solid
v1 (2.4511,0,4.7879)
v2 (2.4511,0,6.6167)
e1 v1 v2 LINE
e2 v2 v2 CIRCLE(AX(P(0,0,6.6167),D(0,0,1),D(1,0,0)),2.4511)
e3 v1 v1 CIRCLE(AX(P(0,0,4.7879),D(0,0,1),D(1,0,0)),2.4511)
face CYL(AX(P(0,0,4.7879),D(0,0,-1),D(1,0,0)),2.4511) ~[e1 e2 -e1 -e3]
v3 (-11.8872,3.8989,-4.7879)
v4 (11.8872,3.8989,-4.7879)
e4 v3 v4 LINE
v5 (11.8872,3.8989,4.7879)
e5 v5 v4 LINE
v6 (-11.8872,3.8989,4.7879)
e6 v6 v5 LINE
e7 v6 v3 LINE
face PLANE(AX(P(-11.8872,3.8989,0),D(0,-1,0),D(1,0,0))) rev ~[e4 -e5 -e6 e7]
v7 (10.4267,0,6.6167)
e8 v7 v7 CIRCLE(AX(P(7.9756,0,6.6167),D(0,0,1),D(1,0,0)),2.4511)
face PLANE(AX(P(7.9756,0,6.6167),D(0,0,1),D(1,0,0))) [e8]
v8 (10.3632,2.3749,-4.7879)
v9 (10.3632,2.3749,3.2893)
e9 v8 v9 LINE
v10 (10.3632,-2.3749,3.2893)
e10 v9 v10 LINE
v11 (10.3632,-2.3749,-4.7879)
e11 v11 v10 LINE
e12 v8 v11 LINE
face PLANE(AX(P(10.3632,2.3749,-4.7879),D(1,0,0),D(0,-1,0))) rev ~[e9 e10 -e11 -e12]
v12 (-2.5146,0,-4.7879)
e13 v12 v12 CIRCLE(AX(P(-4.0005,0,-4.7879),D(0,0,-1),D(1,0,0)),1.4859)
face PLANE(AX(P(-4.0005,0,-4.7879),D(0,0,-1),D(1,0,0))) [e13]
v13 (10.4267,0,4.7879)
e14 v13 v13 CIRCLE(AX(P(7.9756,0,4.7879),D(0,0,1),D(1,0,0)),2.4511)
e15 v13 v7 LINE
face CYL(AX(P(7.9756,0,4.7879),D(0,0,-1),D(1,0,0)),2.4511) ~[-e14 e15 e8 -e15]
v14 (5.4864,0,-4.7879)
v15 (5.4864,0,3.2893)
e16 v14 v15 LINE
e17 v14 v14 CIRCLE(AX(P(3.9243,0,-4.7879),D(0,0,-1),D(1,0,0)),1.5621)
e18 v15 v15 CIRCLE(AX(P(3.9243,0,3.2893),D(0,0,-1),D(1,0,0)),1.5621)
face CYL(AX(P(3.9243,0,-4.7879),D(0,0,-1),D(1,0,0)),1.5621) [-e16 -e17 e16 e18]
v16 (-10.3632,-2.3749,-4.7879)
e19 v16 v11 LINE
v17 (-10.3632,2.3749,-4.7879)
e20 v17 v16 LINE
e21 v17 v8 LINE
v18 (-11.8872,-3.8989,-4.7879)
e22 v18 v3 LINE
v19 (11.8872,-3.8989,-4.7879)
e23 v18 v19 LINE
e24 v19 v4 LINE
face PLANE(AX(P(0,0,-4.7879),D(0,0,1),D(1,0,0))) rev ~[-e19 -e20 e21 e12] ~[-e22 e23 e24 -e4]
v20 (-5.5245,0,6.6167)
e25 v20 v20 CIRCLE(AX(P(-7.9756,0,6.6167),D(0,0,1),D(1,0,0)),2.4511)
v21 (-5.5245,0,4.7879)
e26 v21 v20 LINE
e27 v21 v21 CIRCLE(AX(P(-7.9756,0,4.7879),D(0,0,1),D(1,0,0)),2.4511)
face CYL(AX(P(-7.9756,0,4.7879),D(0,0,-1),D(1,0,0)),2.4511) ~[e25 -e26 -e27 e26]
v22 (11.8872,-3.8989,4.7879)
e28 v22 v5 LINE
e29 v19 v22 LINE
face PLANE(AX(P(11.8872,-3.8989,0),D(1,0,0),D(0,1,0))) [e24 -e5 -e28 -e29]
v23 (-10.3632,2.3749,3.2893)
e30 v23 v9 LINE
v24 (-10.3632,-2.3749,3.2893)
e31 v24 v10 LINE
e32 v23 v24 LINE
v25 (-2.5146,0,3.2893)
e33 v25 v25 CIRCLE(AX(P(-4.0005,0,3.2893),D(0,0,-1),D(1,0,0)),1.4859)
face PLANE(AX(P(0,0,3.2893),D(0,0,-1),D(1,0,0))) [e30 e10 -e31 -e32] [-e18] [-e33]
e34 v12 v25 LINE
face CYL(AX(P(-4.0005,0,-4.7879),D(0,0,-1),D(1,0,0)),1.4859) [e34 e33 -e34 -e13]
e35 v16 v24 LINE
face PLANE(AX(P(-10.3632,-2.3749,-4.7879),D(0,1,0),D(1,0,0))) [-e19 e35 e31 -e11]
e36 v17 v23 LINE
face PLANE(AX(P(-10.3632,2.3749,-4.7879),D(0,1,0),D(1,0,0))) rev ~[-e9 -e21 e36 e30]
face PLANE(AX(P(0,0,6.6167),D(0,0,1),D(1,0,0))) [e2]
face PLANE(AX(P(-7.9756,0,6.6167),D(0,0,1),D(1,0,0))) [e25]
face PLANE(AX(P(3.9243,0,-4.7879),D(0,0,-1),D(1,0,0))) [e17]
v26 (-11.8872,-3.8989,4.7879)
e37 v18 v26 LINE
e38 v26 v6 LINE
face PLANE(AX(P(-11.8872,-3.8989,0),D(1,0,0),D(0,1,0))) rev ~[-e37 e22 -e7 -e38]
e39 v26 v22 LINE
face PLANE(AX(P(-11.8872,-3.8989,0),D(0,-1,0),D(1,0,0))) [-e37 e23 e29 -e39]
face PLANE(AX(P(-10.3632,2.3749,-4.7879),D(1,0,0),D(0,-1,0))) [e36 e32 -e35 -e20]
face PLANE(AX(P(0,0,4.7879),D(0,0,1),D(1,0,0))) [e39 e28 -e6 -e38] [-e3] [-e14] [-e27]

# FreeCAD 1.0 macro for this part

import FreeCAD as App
import Part
import Sketcher

V = App.Vector
Q = App.Units.Quantity


def add_polygon(sketch, points):
    """Adds a closed chain of lines whose ends are joined by coincident constraints."""
    first, n = sketch.GeometryCount, len(points)
    for a, b in zip(points, points[1:] + points[:1]):
        sketch.addGeometry(Part.LineSegment(App.Vector(*a, 0), App.Vector(*b, 0)), False)
    for i in range(n):
        sketch.addConstraint(Sketcher.Constraint("Coincident", first + i, 2, first + (i + 1) % n, 1))

doc = App.newDocument("Part")
body = doc.addObject("PartDesign::Body", "Body")

# Sketch on XY plane
sketch1 = doc.addObject("Sketcher::SketchObject", "Sketch")
body.addObject(sketch1)
sketch1.AttachmentSupport = (doc.XY_Plane, [""])
sketch1.MapMode = "FlatFace"
add_polygon(sketch1, [(-11.8872, 3.8989), (-11.8872, -3.8989), (11.8872, -3.8989), (11.8872, 3.8989)])  # lines 0-3
sketch1.addConstraint(Sketcher.Constraint("Vertical", 0))
sketch1.addConstraint(Sketcher.Constraint("Horizontal", 1))
sketch1.addConstraint(Sketcher.Constraint("Vertical", 2))
sketch1.addConstraint(Sketcher.Constraint("Horizontal", 3))
sketch1.addConstraint(Sketcher.Constraint("Symmetric", 0, 2, 2, 2, -1, 1))
sketch1.addConstraint(Sketcher.Constraint("DistanceX", 1, 1, 1, 2, Q("0.936 in")))
sketch1.addConstraint(Sketcher.Constraint("DistanceY", 0, 2, 0, 1, Q("0.307 in")))
pad1 = doc.addObject("PartDesign::Pad", "Pad")
body.addObject(pad1)
pad1.Profile = sketch1
pad1.Length = Q("0.377 in")
pad1.Midplane = True

# Sketch on XY plane
sketch2 = doc.addObject("Sketcher::SketchObject", "Sketch001")
body.addObject(sketch2)
sketch2.AttachmentSupport = (doc.XY_Plane, [""])
sketch2.MapMode = "FlatFace"
sketch2.AttachmentOffset = App.Placement(V(0, 0, 0.1885 * 25.4), App.Rotation())
sketch2.addGeometry(Part.Circle(V(-7.9756, 0, 0), V(0, 0, 1), 2.4511), False)
sketch2.addGeometry(Part.Circle(V(0, 0, 0), V(0, 0, 1), 2.4511), False)
sketch2.addGeometry(Part.Circle(V(7.9756, 0, 0), V(0, 0, 1), 2.4511), False)
sketch2.addConstraint(Sketcher.Constraint("Coincident", 1, 3, -1, 1))
sketch2.addConstraint(Sketcher.Constraint("Equal", 0, 1))
sketch2.addConstraint(Sketcher.Constraint("Equal", 1, 2))
sketch2.addConstraint(Sketcher.Constraint("Symmetric", 0, 3, 2, 3, -1, 1))
sketch2.addConstraint(Sketcher.Constraint("PointOnObject", 0, 3, -1))
sketch2.addConstraint(Sketcher.Constraint("Diameter", 0, Q("0.193 in")))
sketch2.addConstraint(Sketcher.Constraint("DistanceX", 0, 3, -1, 1, Q("0.314 in")))
pad2 = doc.addObject("PartDesign::Pad", "Pad001")
body.addObject(pad2)
pad2.Profile = sketch2
pad2.Length = Q("0.072 in")

# Sketch on XY plane
sketch3 = doc.addObject("Sketcher::SketchObject", "Sketch002")
body.addObject(sketch3)
sketch3.AttachmentSupport = (doc.XY_Plane, [""])
sketch3.MapMode = "FlatFace"
sketch3.AttachmentOffset = App.Placement(V(0, 0, -0.1885 * 25.4), App.Rotation())
add_polygon(sketch3, [(-10.3632, -2.3749), (-10.3632, 2.3749), (10.3632, 2.3749), (10.3632, -2.3749)])  # lines 0-3
sketch3.addConstraint(Sketcher.Constraint("Vertical", 0))
sketch3.addConstraint(Sketcher.Constraint("Horizontal", 1))
sketch3.addConstraint(Sketcher.Constraint("Vertical", 2))
sketch3.addConstraint(Sketcher.Constraint("Horizontal", 3))
sketch3.addConstraint(Sketcher.Constraint("Symmetric", 0, 2, 2, 2, -1, 1))
sketch3.addConstraint(Sketcher.Constraint("DistanceX", 1, 1, 1, 2, Q("0.816 in")))
sketch3.addConstraint(Sketcher.Constraint("DistanceY", 0, 1, 0, 2, Q("0.187 in")))
pocket1 = doc.addObject("PartDesign::Pocket", "Pocket")
body.addObject(pocket1)
pocket1.Profile = sketch3
pocket1.Length = Q("0.318 in")
pocket1.Reversed = True

# Sketch on XY plane
sketch4 = doc.addObject("Sketcher::SketchObject", "Sketch003")
body.addObject(sketch4)
sketch4.AttachmentSupport = (doc.XY_Plane, [""])
sketch4.MapMode = "FlatFace"
sketch4.AttachmentOffset = App.Placement(V(0, 0, -0.1885 * 25.4), App.Rotation())
sketch4.addGeometry(Part.Circle(V(-4.0005, 0, 0), V(0, 0, 1), 1.4859), False)
sketch4.addGeometry(Part.Circle(V(3.9243, 0, 0), V(0, 0, 1), 1.5621), False)
sketch4.addConstraint(Sketcher.Constraint("PointOnObject", 0, 3, -1))
sketch4.addConstraint(Sketcher.Constraint("PointOnObject", 1, 3, -1))
sketch4.addConstraint(Sketcher.Constraint("Diameter", 0, Q("0.117 in")))
sketch4.addConstraint(Sketcher.Constraint("Diameter", 1, Q("0.123 in")))
sketch4.addConstraint(Sketcher.Constraint("DistanceX", 0, 3, 1, 3, Q("0.312 in")))
sketch4.addConstraint(Sketcher.Constraint("DistanceX", 0, 3, -1, 1, Q("0.1575 in")))
pad3 = doc.addObject("PartDesign::Pad", "Pad002")
body.addObject(pad3)
pad3.Profile = sketch4
pad3.Length = Q("0.318 in")

doc.recompute()
